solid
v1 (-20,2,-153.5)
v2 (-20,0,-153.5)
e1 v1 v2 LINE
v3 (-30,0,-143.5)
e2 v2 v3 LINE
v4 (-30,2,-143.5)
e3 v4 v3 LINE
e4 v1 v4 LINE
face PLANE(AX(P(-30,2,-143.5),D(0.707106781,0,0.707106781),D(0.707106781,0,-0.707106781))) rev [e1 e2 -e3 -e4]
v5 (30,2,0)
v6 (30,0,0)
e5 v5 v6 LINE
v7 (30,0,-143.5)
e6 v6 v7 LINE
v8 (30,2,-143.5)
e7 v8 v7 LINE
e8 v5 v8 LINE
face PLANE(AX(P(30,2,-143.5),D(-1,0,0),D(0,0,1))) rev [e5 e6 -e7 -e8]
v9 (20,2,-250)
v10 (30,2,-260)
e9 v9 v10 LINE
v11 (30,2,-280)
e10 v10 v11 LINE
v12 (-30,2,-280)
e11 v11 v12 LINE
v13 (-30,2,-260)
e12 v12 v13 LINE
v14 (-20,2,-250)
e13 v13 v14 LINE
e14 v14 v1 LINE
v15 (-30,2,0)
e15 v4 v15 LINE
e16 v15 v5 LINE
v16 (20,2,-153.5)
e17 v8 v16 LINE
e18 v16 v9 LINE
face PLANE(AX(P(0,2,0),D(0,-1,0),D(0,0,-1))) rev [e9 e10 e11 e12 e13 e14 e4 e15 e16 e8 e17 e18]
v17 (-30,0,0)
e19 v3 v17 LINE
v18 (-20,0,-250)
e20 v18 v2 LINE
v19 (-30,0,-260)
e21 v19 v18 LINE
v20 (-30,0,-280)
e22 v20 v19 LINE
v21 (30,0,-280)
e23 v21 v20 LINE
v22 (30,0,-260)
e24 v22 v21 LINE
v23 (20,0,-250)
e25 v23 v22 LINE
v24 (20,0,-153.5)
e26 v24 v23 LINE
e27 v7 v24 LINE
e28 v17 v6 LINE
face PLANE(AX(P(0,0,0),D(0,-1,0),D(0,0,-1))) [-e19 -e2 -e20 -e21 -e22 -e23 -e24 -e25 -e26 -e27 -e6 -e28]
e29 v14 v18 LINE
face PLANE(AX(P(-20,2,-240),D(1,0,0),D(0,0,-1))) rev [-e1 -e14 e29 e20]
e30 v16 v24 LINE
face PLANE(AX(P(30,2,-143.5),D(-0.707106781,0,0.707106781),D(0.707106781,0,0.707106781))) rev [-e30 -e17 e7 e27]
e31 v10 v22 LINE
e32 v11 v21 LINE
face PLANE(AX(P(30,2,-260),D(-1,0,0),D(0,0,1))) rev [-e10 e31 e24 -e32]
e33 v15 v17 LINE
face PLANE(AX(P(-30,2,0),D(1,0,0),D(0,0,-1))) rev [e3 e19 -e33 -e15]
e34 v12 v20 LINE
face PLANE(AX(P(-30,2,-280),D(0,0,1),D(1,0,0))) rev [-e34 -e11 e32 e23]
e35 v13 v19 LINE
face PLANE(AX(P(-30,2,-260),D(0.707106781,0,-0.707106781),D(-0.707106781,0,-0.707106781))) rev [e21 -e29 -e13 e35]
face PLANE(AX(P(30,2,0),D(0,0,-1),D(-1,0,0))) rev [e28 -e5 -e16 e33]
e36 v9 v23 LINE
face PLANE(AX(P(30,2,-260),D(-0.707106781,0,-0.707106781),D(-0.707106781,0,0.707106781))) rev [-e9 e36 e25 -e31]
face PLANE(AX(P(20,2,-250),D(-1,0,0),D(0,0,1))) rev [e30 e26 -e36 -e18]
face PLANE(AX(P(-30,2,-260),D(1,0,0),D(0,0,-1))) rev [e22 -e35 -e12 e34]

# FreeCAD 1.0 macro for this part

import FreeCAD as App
import Part
import Sketcher


def add_polygon(sketch, points):
    """Adds a closed chain of lines whose ends are joined by coincident constraints."""
    first, n = sketch.GeometryCount, len(points)
    for a, b in zip(points, points[1:] + points[:1]):
        sketch.addGeometry(Part.LineSegment(App.Vector(*a, 0), App.Vector(*b, 0)), False)
    for i in range(n):
        sketch.addConstraint(Sketcher.Constraint("Coincident", first + i, 2, first + (i + 1) % n, 1))

doc = App.newDocument("Part")
body = doc.addObject("PartDesign::Body", "Body")

# Sketch on XZ plane
sketch1 = body.newObject("Sketcher::SketchObject", "Sketch")
sketch1.AttachmentSupport = (doc.getObject("XZ_Plane"), [""])
sketch1.MapMode = "FlatFace"
add_polygon(sketch1, [(30, -260), (30, -280), (-30, -280), (-30, -260), (-20, -250), (-20, -154), (-30, -144), (-30, 0), (30, 0), (30, -144), (20, -154), (20, -250)])  # lines 0-11
sketch1.addConstraint(Sketcher.Constraint("Vertical", 0))
sketch1.addConstraint(Sketcher.Constraint("Horizontal", 1))
sketch1.addConstraint(Sketcher.Constraint("Vertical", 2))
sketch1.addConstraint(Sketcher.Constraint("Vertical", 4))
sketch1.addConstraint(Sketcher.Constraint("Vertical", 6))
sketch1.addConstraint(Sketcher.Constraint("Horizontal", 7))
sketch1.addConstraint(Sketcher.Constraint("Vertical", 8))
sketch1.addConstraint(Sketcher.Constraint("Vertical", 10))
sketch1.addConstraint(Sketcher.Constraint("Symmetric", 6, 2, 7, 2, -1, 1))
sketch1.addConstraint(Sketcher.Constraint("Symmetric", 4, 2, 9, 2, -2))
sketch1.addConstraint(Sketcher.Constraint("Symmetric", 2, 2, 11, 2, -2))
sketch1.addConstraint(Sketcher.Constraint("Perpendicular", 3, 5))
sketch1.addConstraint(Sketcher.Constraint("Perpendicular", 5, 9))
sketch1.addConstraint(Sketcher.Constraint("Perpendicular", 9, 11))
sketch1.addConstraint(Sketcher.Constraint("Horizontal", 5, 2, 8, 2))
sketch1.addConstraint(Sketcher.Constraint("Vertical", 2, 2, 5, 2))
sketch1.addConstraint(Sketcher.Constraint("DistanceX", 1, 2, 1, 1, 60.0))
sketch1.addConstraint(Sketcher.Constraint("DistanceY", 0, 2, 0, 1, 20.0))
sketch1.addConstraint(Sketcher.Constraint("DistanceY", 4, 1, 4, 2, 96.5))
sketch1.addConstraint(Sketcher.Constraint("DistanceY", 6, 1, 6, 2, 143.5))
sketch1.addConstraint(Sketcher.Constraint("DistanceY", 0, 2, -1, 1, 280.0))
pad1 = body.newObject("PartDesign::Pad", "Pad")
pad1.Profile = sketch1
pad1.Length = 2
pad1.Reversed = True

doc.recompute()
